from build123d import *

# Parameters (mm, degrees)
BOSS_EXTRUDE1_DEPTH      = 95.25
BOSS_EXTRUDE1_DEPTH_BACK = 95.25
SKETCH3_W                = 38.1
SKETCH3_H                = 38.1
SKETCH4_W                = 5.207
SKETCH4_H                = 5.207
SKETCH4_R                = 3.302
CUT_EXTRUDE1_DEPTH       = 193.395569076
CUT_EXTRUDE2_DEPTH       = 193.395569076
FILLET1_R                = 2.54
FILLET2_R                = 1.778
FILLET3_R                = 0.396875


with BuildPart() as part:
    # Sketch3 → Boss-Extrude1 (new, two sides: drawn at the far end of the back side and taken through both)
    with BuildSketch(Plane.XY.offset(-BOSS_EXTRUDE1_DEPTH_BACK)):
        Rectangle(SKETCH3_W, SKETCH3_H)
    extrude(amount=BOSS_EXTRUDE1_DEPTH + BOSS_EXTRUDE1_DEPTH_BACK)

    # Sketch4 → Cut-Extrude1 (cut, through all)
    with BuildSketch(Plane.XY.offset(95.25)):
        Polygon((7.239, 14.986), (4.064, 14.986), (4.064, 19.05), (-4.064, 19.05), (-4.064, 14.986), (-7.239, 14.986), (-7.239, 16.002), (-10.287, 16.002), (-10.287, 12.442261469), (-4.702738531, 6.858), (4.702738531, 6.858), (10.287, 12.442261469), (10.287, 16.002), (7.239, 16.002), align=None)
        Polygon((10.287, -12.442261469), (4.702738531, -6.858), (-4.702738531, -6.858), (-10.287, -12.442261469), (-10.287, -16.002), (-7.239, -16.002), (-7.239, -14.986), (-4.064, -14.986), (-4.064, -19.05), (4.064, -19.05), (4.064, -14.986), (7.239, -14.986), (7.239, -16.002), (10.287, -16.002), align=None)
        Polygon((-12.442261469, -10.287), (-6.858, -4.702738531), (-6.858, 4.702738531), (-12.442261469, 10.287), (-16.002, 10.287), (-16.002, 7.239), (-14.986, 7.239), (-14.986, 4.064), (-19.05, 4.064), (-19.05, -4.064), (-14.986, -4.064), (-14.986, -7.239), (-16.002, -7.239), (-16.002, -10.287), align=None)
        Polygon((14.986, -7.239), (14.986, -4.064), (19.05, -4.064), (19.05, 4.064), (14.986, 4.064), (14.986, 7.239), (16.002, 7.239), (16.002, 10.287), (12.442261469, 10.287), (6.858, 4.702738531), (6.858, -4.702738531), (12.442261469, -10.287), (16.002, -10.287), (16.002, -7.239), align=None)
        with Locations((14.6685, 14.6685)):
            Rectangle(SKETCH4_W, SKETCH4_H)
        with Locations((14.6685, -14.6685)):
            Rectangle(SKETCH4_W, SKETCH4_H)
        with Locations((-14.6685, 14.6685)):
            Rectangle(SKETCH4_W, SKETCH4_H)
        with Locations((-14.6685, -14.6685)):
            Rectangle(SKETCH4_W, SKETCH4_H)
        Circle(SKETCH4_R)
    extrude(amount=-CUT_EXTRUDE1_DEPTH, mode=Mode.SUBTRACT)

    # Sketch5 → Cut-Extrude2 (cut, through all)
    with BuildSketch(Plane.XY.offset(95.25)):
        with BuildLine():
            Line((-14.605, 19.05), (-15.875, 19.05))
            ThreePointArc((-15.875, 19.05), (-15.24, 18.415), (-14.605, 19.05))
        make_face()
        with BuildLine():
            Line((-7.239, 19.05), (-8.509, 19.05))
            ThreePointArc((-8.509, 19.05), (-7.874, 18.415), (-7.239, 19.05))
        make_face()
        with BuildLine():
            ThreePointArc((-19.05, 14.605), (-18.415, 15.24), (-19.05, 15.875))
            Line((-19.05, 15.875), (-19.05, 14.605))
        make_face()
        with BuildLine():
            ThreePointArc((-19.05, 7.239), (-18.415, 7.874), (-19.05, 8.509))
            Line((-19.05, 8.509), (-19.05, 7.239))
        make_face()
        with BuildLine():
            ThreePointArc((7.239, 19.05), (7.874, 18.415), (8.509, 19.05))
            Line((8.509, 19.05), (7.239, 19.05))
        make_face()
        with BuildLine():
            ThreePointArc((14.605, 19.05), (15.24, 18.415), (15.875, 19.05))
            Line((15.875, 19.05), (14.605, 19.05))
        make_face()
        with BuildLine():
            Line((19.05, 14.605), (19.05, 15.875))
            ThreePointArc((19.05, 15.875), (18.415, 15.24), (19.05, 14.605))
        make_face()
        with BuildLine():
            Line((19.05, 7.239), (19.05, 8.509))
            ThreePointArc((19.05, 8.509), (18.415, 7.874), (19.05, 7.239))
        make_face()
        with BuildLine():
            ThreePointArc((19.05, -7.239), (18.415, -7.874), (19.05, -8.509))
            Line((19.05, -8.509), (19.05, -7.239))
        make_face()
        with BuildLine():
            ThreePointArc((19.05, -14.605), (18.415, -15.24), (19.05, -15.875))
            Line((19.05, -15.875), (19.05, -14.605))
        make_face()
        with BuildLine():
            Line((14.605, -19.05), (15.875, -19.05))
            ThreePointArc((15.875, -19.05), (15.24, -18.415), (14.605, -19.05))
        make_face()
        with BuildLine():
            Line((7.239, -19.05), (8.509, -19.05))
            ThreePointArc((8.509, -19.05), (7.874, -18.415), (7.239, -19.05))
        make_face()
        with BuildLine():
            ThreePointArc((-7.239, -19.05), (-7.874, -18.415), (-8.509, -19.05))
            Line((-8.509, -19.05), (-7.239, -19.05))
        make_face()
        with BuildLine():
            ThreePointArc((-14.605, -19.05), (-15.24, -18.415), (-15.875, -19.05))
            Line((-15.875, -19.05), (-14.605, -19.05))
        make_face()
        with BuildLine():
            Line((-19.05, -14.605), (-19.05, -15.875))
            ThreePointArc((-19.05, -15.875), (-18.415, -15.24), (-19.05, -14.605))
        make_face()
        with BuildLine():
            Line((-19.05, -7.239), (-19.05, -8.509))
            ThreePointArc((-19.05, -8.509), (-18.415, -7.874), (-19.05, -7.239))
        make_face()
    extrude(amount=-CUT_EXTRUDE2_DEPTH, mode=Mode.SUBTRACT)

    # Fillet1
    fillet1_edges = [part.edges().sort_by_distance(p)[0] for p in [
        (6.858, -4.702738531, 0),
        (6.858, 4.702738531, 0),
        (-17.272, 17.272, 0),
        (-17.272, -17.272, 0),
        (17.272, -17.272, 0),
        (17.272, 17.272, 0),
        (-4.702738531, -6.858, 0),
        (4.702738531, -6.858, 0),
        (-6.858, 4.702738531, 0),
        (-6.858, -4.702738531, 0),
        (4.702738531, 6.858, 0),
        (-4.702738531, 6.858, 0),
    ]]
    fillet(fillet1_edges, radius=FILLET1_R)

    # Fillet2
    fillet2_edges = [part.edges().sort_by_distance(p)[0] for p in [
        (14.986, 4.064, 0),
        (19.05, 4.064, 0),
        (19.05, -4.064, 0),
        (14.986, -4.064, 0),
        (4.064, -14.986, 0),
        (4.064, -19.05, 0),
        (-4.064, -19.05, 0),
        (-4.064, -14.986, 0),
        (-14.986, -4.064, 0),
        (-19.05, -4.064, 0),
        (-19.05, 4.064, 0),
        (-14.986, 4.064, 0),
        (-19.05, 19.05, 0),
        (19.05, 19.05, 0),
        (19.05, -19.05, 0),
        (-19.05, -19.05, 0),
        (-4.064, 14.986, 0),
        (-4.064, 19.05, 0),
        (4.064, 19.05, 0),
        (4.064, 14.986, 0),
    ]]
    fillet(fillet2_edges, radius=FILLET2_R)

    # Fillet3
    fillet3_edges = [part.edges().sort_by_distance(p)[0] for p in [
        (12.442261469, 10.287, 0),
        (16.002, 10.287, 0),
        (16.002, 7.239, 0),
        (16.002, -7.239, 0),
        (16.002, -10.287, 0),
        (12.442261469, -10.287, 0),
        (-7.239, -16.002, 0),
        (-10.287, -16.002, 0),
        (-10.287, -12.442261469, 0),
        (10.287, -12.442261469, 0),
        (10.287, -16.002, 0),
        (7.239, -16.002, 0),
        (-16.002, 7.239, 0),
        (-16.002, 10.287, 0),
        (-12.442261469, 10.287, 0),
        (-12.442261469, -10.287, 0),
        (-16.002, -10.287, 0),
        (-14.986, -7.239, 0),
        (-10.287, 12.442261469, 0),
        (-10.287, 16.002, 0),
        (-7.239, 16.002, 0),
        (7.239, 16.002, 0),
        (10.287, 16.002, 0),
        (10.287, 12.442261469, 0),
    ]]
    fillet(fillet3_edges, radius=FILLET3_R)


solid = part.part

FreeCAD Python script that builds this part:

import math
import FreeCAD as App
import Part
import Sketcher
Q = App.Units.Quantity


def edges_at(feature, points):
    """Names of the edges that pass closest to the given points."""
    edges = feature.Shape.Edges
    near = lambda p: min(range(len(edges)), key=lambda i: edges[i].distToShape(Part.Vertex(*p))[0])
    return sorted({f"Edge{near(p) + 1}" for p in points})


def add_polygon(sketch, points):
    """Adds a closed chain of lines whose ends are joined by coincident constraints."""
    first, n = sketch.GeometryCount, len(points)
    for a, b in zip(points, points[1:] + points[:1]):
        sketch.addGeometry(Part.LineSegment(App.Vector(*a, 0), App.Vector(*b, 0)), False)
    for i in range(n):
        sketch.addConstraint(Sketcher.Constraint("Coincident", first + i, 2, first + (i + 1) % n, 1))

doc = App.newDocument("Part")
body = doc.addObject("PartDesign::Body", "Body")

# Sketch on XY plane
sketch1 = body.newObject("Sketcher::SketchObject", "Sketch")
sketch1.AttachmentSupport = (doc.getObject("XY_Plane"), [""])
sketch1.MapMode = "FlatFace"
add_polygon(sketch1, [(-19, 19), (-19, -19), (19, -19), (19, 19)])  # lines 0-3
sketch1.addConstraint(Sketcher.Constraint("Vertical", 0))
sketch1.addConstraint(Sketcher.Constraint("Horizontal", 1))
sketch1.addConstraint(Sketcher.Constraint("Vertical", 2))
sketch1.addConstraint(Sketcher.Constraint("Horizontal", 3))
sketch1.addConstraint(Sketcher.Constraint("Symmetric", 0, 2, 2, 2, -1, 1))
sketch1.addConstraint(Sketcher.Constraint("Equal", 3, 0))
sketch1.addConstraint(Sketcher.Constraint("DistanceX", 1, 1, 1, 2, Q("1.5 in")))
pad1 = body.newObject("PartDesign::Pad", "Pad")
pad1.Profile = sketch1
pad1.Type = "TwoLengths"
pad1.Length = Q("3.75 in")
pad1.Length2 = Q("3.75 in")

# Sketch on XY plane
sketch2 = body.newObject("Sketcher::SketchObject", "Sketch001")
sketch2.AttachmentSupport = (doc.getObject("XY_Plane"), [""])
sketch2.MapMode = "FlatFace"
sketch2.AttachmentOffset = App.Placement(App.Vector(0, 0, 3.75 * 25.4), App.Rotation())
add_polygon(sketch2, [(7.2, 15), (4.1, 15), (4.1, 19.1), (-4.1, 19.1), (-4.1, 15), (-7.2, 15), (-7.2, 16), (-10.3, 16), (-10.3, 12.4), (-4.7, 6.9), (4.7, 6.9), (10.3, 12.4), (10.3, 16), (7.2, 16)])  # lines 0-13
add_polygon(sketch2, [(10.3, -12.4), (4.7, -6.9), (-4.7, -6.9), (-10.3, -12.4), (-10.3, -16), (-7.2, -16), (-7.2, -15), (-4.1, -15), (-4.1, -19.1), (4.1, -19.1), (4.1, -15), (7.2, -15), (7.2, -16), (10.3, -16)])  # lines 14-27
add_polygon(sketch2, [(-12.4, -10.3), (-6.9, -4.7), (-6.9, 4.7), (-12.4, 10.3), (-16, 10.3), (-16, 7.2), (-15, 7.2), (-15, 4.1), (-19.1, 4.1), (-19.1, -4.1), (-15, -4.1), (-15, -7.2), (-16, -7.2), (-16, -10.3)])  # lines 28-41
add_polygon(sketch2, [(15, -7.2), (15, -4.1), (19.1, -4.1), (19.1, 4.1), (15, 4.1), (15, 7.2), (16, 7.2), (16, 10.3), (12.4, 10.3), (6.9, 4.7), (6.9, -4.7), (12.4, -10.3), (16, -10.3), (16, -7.2)])  # lines 42-55
add_polygon(sketch2, [(12.1, 17.3), (12.1, 12.1), (17.3, 12.1), (17.3, 17.3)])  # lines 56-59
add_polygon(sketch2, [(12.1, -12.1), (12.1, -17.3), (17.3, -17.3), (17.3, -12.1)])  # lines 60-63
add_polygon(sketch2, [(-17.3, 17.3), (-17.3, 12.1), (-12.1, 12.1), (-12.1, 17.3)])  # lines 64-67
add_polygon(sketch2, [(-17.3, -12.1), (-17.3, -17.3), (-12.1, -17.3), (-12.1, -12.1)])  # lines 68-71
sketch2.addGeometry(Part.Circle(App.Vector(0, 0, 0), App.Vector(0, 0, 1), 3.3), False)  # 72
sketch2.addConstraint(Sketcher.Constraint("Horizontal", 0))
sketch2.addConstraint(Sketcher.Constraint("Vertical", 1))
sketch2.addConstraint(Sketcher.Constraint("Horizontal", 2))
sketch2.addConstraint(Sketcher.Constraint("Vertical", 3))
sketch2.addConstraint(Sketcher.Constraint("Horizontal", 4))
sketch2.addConstraint(Sketcher.Constraint("Vertical", 5))
sketch2.addConstraint(Sketcher.Constraint("Horizontal", 6))
sketch2.addConstraint(Sketcher.Constraint("Vertical", 7))
sketch2.addConstraint(Sketcher.Constraint("Horizontal", 9))
sketch2.addConstraint(Sketcher.Constraint("Vertical", 11))
sketch2.addConstraint(Sketcher.Constraint("Horizontal", 12))
sketch2.addConstraint(Sketcher.Constraint("Vertical", 13))
sketch2.addConstraint(Sketcher.Constraint("Horizontal", 15))
sketch2.addConstraint(Sketcher.Constraint("Vertical", 17))
sketch2.addConstraint(Sketcher.Constraint("Horizontal", 18))
sketch2.addConstraint(Sketcher.Constraint("Vertical", 19))
sketch2.addConstraint(Sketcher.Constraint("Horizontal", 20))
sketch2.addConstraint(Sketcher.Constraint("Vertical", 21))
sketch2.addConstraint(Sketcher.Constraint("Horizontal", 22))
sketch2.addConstraint(Sketcher.Constraint("Vertical", 23))
sketch2.addConstraint(Sketcher.Constraint("Horizontal", 24))
sketch2.addConstraint(Sketcher.Constraint("Vertical", 25))
sketch2.addConstraint(Sketcher.Constraint("Horizontal", 26))
sketch2.addConstraint(Sketcher.Constraint("Vertical", 27))
sketch2.addConstraint(Sketcher.Constraint("Vertical", 29))
sketch2.addConstraint(Sketcher.Constraint("Horizontal", 31))
sketch2.addConstraint(Sketcher.Constraint("Vertical", 32))
sketch2.addConstraint(Sketcher.Constraint("Horizontal", 33))
sketch2.addConstraint(Sketcher.Constraint("Vertical", 34))
sketch2.addConstraint(Sketcher.Constraint("Horizontal", 35))
sketch2.addConstraint(Sketcher.Constraint("Vertical", 36))
sketch2.addConstraint(Sketcher.Constraint("Horizontal", 37))
sketch2.addConstraint(Sketcher.Constraint("Vertical", 38))
sketch2.addConstraint(Sketcher.Constraint("Horizontal", 39))
sketch2.addConstraint(Sketcher.Constraint("Vertical", 40))
sketch2.addConstraint(Sketcher.Constraint("Horizontal", 41))
sketch2.addConstraint(Sketcher.Constraint("Vertical", 42))
sketch2.addConstraint(Sketcher.Constraint("Horizontal", 43))
sketch2.addConstraint(Sketcher.Constraint("Vertical", 44))
sketch2.addConstraint(Sketcher.Constraint("Horizontal", 45))
sketch2.addConstraint(Sketcher.Constraint("Vertical", 46))
sketch2.addConstraint(Sketcher.Constraint("Horizontal", 47))
sketch2.addConstraint(Sketcher.Constraint("Vertical", 48))
sketch2.addConstraint(Sketcher.Constraint("Horizontal", 49))
sketch2.addConstraint(Sketcher.Constraint("Vertical", 51))
sketch2.addConstraint(Sketcher.Constraint("Horizontal", 53))
sketch2.addConstraint(Sketcher.Constraint("Vertical", 54))
sketch2.addConstraint(Sketcher.Constraint("Horizontal", 55))
sketch2.addConstraint(Sketcher.Constraint("Vertical", 56))
sketch2.addConstraint(Sketcher.Constraint("Horizontal", 57))
sketch2.addConstraint(Sketcher.Constraint("Vertical", 58))
sketch2.addConstraint(Sketcher.Constraint("Horizontal", 59))
sketch2.addConstraint(Sketcher.Constraint("Vertical", 60))
sketch2.addConstraint(Sketcher.Constraint("Horizontal", 61))
sketch2.addConstraint(Sketcher.Constraint("Vertical", 62))
sketch2.addConstraint(Sketcher.Constraint("Horizontal", 63))
sketch2.addConstraint(Sketcher.Constraint("Vertical", 64))
sketch2.addConstraint(Sketcher.Constraint("Horizontal", 65))
sketch2.addConstraint(Sketcher.Constraint("Vertical", 66))
sketch2.addConstraint(Sketcher.Constraint("Horizontal", 67))
sketch2.addConstraint(Sketcher.Constraint("Vertical", 68))
sketch2.addConstraint(Sketcher.Constraint("Horizontal", 69))
sketch2.addConstraint(Sketcher.Constraint("Vertical", 70))
sketch2.addConstraint(Sketcher.Constraint("Horizontal", 71))
sketch2.addConstraint(Sketcher.Constraint("Coincident", 72, 3, -1, 1))
sketch2.addConstraint(Sketcher.Constraint("Symmetric", 8, 2, 14, 2, -1, 1))
sketch2.addConstraint(Sketcher.Constraint("Symmetric", 10, 2, 16, 2, -1, 1))
sketch2.addConstraint(Sketcher.Constraint("Symmetric", 12, 2, 18, 2, -1, 1))
sketch2.addConstraint(Sketcher.Constraint("Symmetric", 0, 2, 20, 2, -1, 1))
sketch2.addConstraint(Sketcher.Constraint("Symmetric", 2, 2, 22, 2, -1, 1))
sketch2.addConstraint(Sketcher.Constraint("Symmetric", 4, 2, 24, 2, -1, 1))
sketch2.addConstraint(Sketcher.Constraint("Symmetric", 6, 2, 26, 2, -1, 1))
sketch2.addConstraint(Sketcher.Constraint("Symmetric", 34, 2, 42, 2, -1, 1))
sketch2.addConstraint(Sketcher.Constraint("Symmetric", 36, 2, 44, 2, -1, 1))
sketch2.addConstraint(Sketcher.Constraint("Symmetric", 38, 2, 46, 2, -1, 1))
sketch2.addConstraint(Sketcher.Constraint("Symmetric", 40, 2, 48, 2, -1, 1))
sketch2.addConstraint(Sketcher.Constraint("Symmetric", 28, 2, 50, 2, -1, 1))
sketch2.addConstraint(Sketcher.Constraint("Symmetric", 30, 2, 52, 2, -1, 1))
sketch2.addConstraint(Sketcher.Constraint("Symmetric", 32, 2, 54, 2, -1, 1))
sketch2.addConstraint(Sketcher.Constraint("Symmetric", 62, 2, 64, 2, -1, 1))
sketch2.addConstraint(Sketcher.Constraint("Symmetric", 60, 2, 66, 2, -1, 1))
sketch2.addConstraint(Sketcher.Constraint("Symmetric", 58, 2, 68, 2, -1, 1))
sketch2.addConstraint(Sketcher.Constraint("Symmetric", 56, 2, 70, 2, -1, 1))
sketch2.addConstraint(Sketcher.Constraint("Symmetric", 0, 2, 3, 2, -2))
sketch2.addConstraint(Sketcher.Constraint("Symmetric", 7, 2, 10, 2, -2))
sketch2.addConstraint(Sketcher.Constraint("Symmetric", 5, 2, 12, 2, -2))
sketch2.addConstraint(Sketcher.Constraint("Symmetric", 37, 2, 42, 2, -2))
sketch2.addConstraint(Sketcher.Constraint("Symmetric", 32, 2, 47, 2, -2))
sketch2.addConstraint(Sketcher.Constraint("Symmetric", 30, 2, 49, 2, -2))
sketch2.addConstraint(Sketcher.Constraint("Symmetric", 57, 2, 64, 2, -2))
sketch2.addConstraint(Sketcher.Constraint("Symmetric", 59, 2, 66, 2, -2))
sketch2.addConstraint(Sketcher.Constraint("Perpendicular", 8, 10))
sketch2.addConstraint(Sketcher.Constraint("Perpendicular", 10, 14))
sketch2.addConstraint(Sketcher.Constraint("Perpendicular", 14, 16))
sketch2.addConstraint(Sketcher.Constraint("Parallel", 16, 28))
sketch2.addConstraint(Sketcher.Constraint("Perpendicular", 28, 30))
sketch2.addConstraint(Sketcher.Constraint("Perpendicular", 30, 50))
sketch2.addConstraint(Sketcher.Constraint("Perpendicular", 50, 52))
sketch2.addConstraint(Sketcher.Constraint("Horizontal", 29, 2, 50, 2))
sketch2.addConstraint(Sketcher.Constraint("Equal", 45, 1))
sketch2.addConstraint(Sketcher.Constraint("Equal", 55, 5))
sketch2.addConstraint(Sketcher.Constraint("Equal", 53, 7))
sketch2.addConstraint(Sketcher.Constraint("Equal", 15, 29))
sketch2.addConstraint(Sketcher.Constraint("Equal", 26, 32))
sketch2.addConstraint(Sketcher.Constraint("Equal", 24, 34))
sketch2.addConstraint(Sketcher.Constraint("Equal", 22, 36))
sketch2.addConstraint(Sketcher.Constraint("Equal", 71, 56))
sketch2.addConstraint(Sketcher.Constraint("Diameter", 72, Q("0.26 in")))
sketch2.addConstraint(Sketcher.Constraint("DistanceX", 2, 2, 2, 1, Q("0.32 in")))
sketch2.addConstraint(Sketcher.Constraint("DistanceX", 6, 2, 6, 1, Q("0.12 in")))
sketch2.addConstraint(Sketcher.Constraint("DistanceX", 33, 1, 33, 2, Q("0.04 in")))
sketch2.addConstraint(Sketcher.Constraint("DistanceX", 35, 2, 35, 1, Q("0.16 in")))
sketch2.addConstraint(Sketcher.Constraint("DistanceX", 0, 2, 0, 1, Q("0.125 in")))
sketch2.addConstraint(Sketcher.Constraint("DistanceX", 57, 1, 57, 2, Q("0.205 in")))
sketch2.addConstraint(Sketcher.Constraint("DistanceY", -1, 1, 0, 2, Q("0.59 in")))
sketch2.addConstraint(Sketcher.Constraint("DistanceY", -1, 1, 8, 2, Q("0.27 in")))
sketch2.addConstraint(Sketcher.Constraint("DistanceX", 28, 2, -1, 1, Q("0.27 in")))
sketch2.addConstraint(Sketcher.Constraint("DistanceX", -1, 1, 57, 2, Q("0.68 in")))
sketch2.addConstraint(Sketcher.Constraint("DistanceY", -1, 1, 58, 2, Q("0.68 in")))
sketch2.addConstraint(Sketcher.Constraint("DistanceX", 31, 2, 31, 1, 3.559739))
pocket1 = body.newObject("PartDesign::Pocket", "Pocket")
pocket1.Profile = sketch2
pocket1.Type = "ThroughAll"

# Sketch on XY plane
sketch3 = body.newObject("Sketcher::SketchObject", "Sketch002")
sketch3.AttachmentSupport = (doc.getObject("XY_Plane"), [""])
sketch3.MapMode = "FlatFace"
sketch3.AttachmentOffset = App.Placement(App.Vector(0, 0, 3.75 * 25.4), App.Rotation())
sketch3.addGeometry(Part.LineSegment(App.Vector(-14.6, 19.1, 0), App.Vector(-15.9, 19.1, 0)), False)
sketch3.addGeometry(Part.ArcOfCircle(Part.Circle(App.Vector(-15.2, 19.1, 0), App.Vector(0, 0, 1), 0.6), math.radians(180), math.radians(360)), False)
sketch3.addGeometry(Part.LineSegment(App.Vector(-7.2, 19.1, 0), App.Vector(-8.5, 19.1, 0)), False)
sketch3.addGeometry(Part.ArcOfCircle(Part.Circle(App.Vector(-7.9, 19.1, 0), App.Vector(0, 0, 1), 0.6), math.radians(180), math.radians(360)), False)
sketch3.addGeometry(Part.ArcOfCircle(Part.Circle(App.Vector(-19.1, 15.2, 0), App.Vector(0, 0, 1), 0.6), math.radians(-90), math.radians(90)), False)
sketch3.addGeometry(Part.LineSegment(App.Vector(-19.1, 15.9, 0), App.Vector(-19.1, 14.6, 0)), False)
sketch3.addGeometry(Part.ArcOfCircle(Part.Circle(App.Vector(-19.1, 7.9, 0), App.Vector(0, 0, 1), 0.6), math.radians(-90), math.radians(90)), False)
sketch3.addGeometry(Part.LineSegment(App.Vector(-19.1, 8.5, 0), App.Vector(-19.1, 7.2, 0)), False)
sketch3.addGeometry(Part.ArcOfCircle(Part.Circle(App.Vector(7.9, 19.1, 0), App.Vector(0, 0, 1), 0.6), math.radians(180), math.radians(360)), False)
sketch3.addGeometry(Part.LineSegment(App.Vector(8.5, 19.1, 0), App.Vector(7.2, 19.1, 0)), False)
sketch3.addGeometry(Part.ArcOfCircle(Part.Circle(App.Vector(15.2, 19.1, 0), App.Vector(0, 0, 1), 0.6), math.radians(180), math.radians(360)), False)
sketch3.addGeometry(Part.LineSegment(App.Vector(15.9, 19.1, 0), App.Vector(14.6, 19.1, 0)), False)
sketch3.addGeometry(Part.LineSegment(App.Vector(19.1, 14.6, 0), App.Vector(19.1, 15.9, 0)), False)
sketch3.addGeometry(Part.ArcOfCircle(Part.Circle(App.Vector(19.1, 15.2, 0), App.Vector(0, 0, 1), 0.6), math.radians(90), math.radians(270)), False)
sketch3.addGeometry(Part.LineSegment(App.Vector(19.1, 7.2, 0), App.Vector(19.1, 8.5, 0)), False)
sketch3.addGeometry(Part.ArcOfCircle(Part.Circle(App.Vector(19.1, 7.9, 0), App.Vector(0, 0, 1), 0.6), math.radians(90), math.radians(270)), False)
sketch3.addGeometry(Part.ArcOfCircle(Part.Circle(App.Vector(19.1, -7.9, 0), App.Vector(0, 0, 1), 0.6), math.radians(90), math.radians(270)), False)
sketch3.addGeometry(Part.LineSegment(App.Vector(19.1, -8.5, 0), App.Vector(19.1, -7.2, 0)), False)
sketch3.addGeometry(Part.ArcOfCircle(Part.Circle(App.Vector(19.1, -15.2, 0), App.Vector(0, 0, 1), 0.6), math.radians(90), math.radians(270)), False)
sketch3.addGeometry(Part.LineSegment(App.Vector(19.1, -15.9, 0), App.Vector(19.1, -14.6, 0)), False)
sketch3.addGeometry(Part.LineSegment(App.Vector(14.6, -19.1, 0), App.Vector(15.9, -19.1, 0)), False)
sketch3.addGeometry(Part.ArcOfCircle(Part.Circle(App.Vector(15.2, -19.1, 0), App.Vector(0, 0, 1), 0.6), math.radians(0), math.radians(180)), False)
sketch3.addGeometry(Part.LineSegment(App.Vector(7.2, -19.1, 0), App.Vector(8.5, -19.1, 0)), False)
sketch3.addGeometry(Part.ArcOfCircle(Part.Circle(App.Vector(7.9, -19.1, 0), App.Vector(0, 0, 1), 0.6), math.radians(0), math.radians(180)), False)
sketch3.addGeometry(Part.ArcOfCircle(Part.Circle(App.Vector(-7.9, -19.1, 0), App.Vector(0, 0, 1), 0.6), math.radians(0), math.radians(180)), False)
sketch3.addGeometry(Part.LineSegment(App.Vector(-8.5, -19.1, 0), App.Vector(-7.2, -19.1, 0)), False)
sketch3.addGeometry(Part.ArcOfCircle(Part.Circle(App.Vector(-15.2, -19.1, 0), App.Vector(0, 0, 1), 0.6), math.radians(0), math.radians(180)), False)
sketch3.addGeometry(Part.LineSegment(App.Vector(-15.9, -19.1, 0), App.Vector(-14.6, -19.1, 0)), False)
sketch3.addGeometry(Part.LineSegment(App.Vector(-19.1, -14.6, 0), App.Vector(-19.1, -15.9, 0)), False)
sketch3.addGeometry(Part.ArcOfCircle(Part.Circle(App.Vector(-19.1, -15.2, 0), App.Vector(0, 0, 1), 0.6), math.radians(-90), math.radians(90)), False)
sketch3.addGeometry(Part.LineSegment(App.Vector(-19.1, -7.2, 0), App.Vector(-19.1, -8.5, 0)), False)
sketch3.addGeometry(Part.ArcOfCircle(Part.Circle(App.Vector(-19.1, -7.9, 0), App.Vector(0, 0, 1), 0.6), math.radians(-90), math.radians(90)), False)
sketch3.addConstraint(Sketcher.Constraint("Coincident", 0, 1, 1, 2))
sketch3.addConstraint(Sketcher.Constraint("Coincident", 1, 1, 0, 2))
sketch3.addConstraint(Sketcher.Constraint("Coincident", 2, 1, 3, 2))
sketch3.addConstraint(Sketcher.Constraint("Coincident", 3, 1, 2, 2))
sketch3.addConstraint(Sketcher.Constraint("Coincident", 4, 1, 5, 2))
sketch3.addConstraint(Sketcher.Constraint("Coincident", 5, 1, 4, 2))
sketch3.addConstraint(Sketcher.Constraint("Coincident", 6, 1, 7, 2))
sketch3.addConstraint(Sketcher.Constraint("Coincident", 7, 1, 6, 2))
sketch3.addConstraint(Sketcher.Constraint("Coincident", 8, 1, 9, 2))
sketch3.addConstraint(Sketcher.Constraint("Coincident", 9, 1, 8, 2))
sketch3.addConstraint(Sketcher.Constraint("Coincident", 10, 1, 11, 2))
sketch3.addConstraint(Sketcher.Constraint("Coincident", 11, 1, 10, 2))
sketch3.addConstraint(Sketcher.Constraint("Coincident", 12, 1, 13, 2))
sketch3.addConstraint(Sketcher.Constraint("Coincident", 13, 1, 12, 2))
sketch3.addConstraint(Sketcher.Constraint("Coincident", 14, 1, 15, 2))
sketch3.addConstraint(Sketcher.Constraint("Coincident", 15, 1, 14, 2))
sketch3.addConstraint(Sketcher.Constraint("Coincident", 16, 1, 17, 2))
sketch3.addConstraint(Sketcher.Constraint("Coincident", 17, 1, 16, 2))
sketch3.addConstraint(Sketcher.Constraint("Coincident", 18, 1, 19, 2))
sketch3.addConstraint(Sketcher.Constraint("Coincident", 19, 1, 18, 2))
sketch3.addConstraint(Sketcher.Constraint("Coincident", 20, 1, 21, 2))
sketch3.addConstraint(Sketcher.Constraint("Coincident", 21, 1, 20, 2))
sketch3.addConstraint(Sketcher.Constraint("Coincident", 22, 1, 23, 2))
sketch3.addConstraint(Sketcher.Constraint("Coincident", 23, 1, 22, 2))
sketch3.addConstraint(Sketcher.Constraint("Coincident", 24, 1, 25, 2))
sketch3.addConstraint(Sketcher.Constraint("Coincident", 25, 1, 24, 2))
sketch3.addConstraint(Sketcher.Constraint("Coincident", 26, 1, 27, 2))
sketch3.addConstraint(Sketcher.Constraint("Coincident", 27, 1, 26, 2))
sketch3.addConstraint(Sketcher.Constraint("Coincident", 28, 1, 29, 2))
sketch3.addConstraint(Sketcher.Constraint("Coincident", 29, 1, 28, 2))
sketch3.addConstraint(Sketcher.Constraint("Coincident", 30, 1, 31, 2))
sketch3.addConstraint(Sketcher.Constraint("Coincident", 31, 1, 30, 2))
sketch3.addConstraint(Sketcher.Constraint("Horizontal", 0))
sketch3.addConstraint(Sketcher.Constraint("Horizontal", 2))
sketch3.addConstraint(Sketcher.Constraint("Vertical", 5))
sketch3.addConstraint(Sketcher.Constraint("Vertical", 7))
sketch3.addConstraint(Sketcher.Constraint("Horizontal", 9))
sketch3.addConstraint(Sketcher.Constraint("Horizontal", 11))
sketch3.addConstraint(Sketcher.Constraint("Vertical", 12))
sketch3.addConstraint(Sketcher.Constraint("Vertical", 14))
sketch3.addConstraint(Sketcher.Constraint("Vertical", 17))
sketch3.addConstraint(Sketcher.Constraint("Vertical", 19))
sketch3.addConstraint(Sketcher.Constraint("Horizontal", 20))
sketch3.addConstraint(Sketcher.Constraint("Horizontal", 22))
sketch3.addConstraint(Sketcher.Constraint("Horizontal", 25))
sketch3.addConstraint(Sketcher.Constraint("Horizontal", 27))
sketch3.addConstraint(Sketcher.Constraint("Vertical", 28))
sketch3.addConstraint(Sketcher.Constraint("Vertical", 30))
sketch3.addConstraint(Sketcher.Constraint("Equal", 1, 3))
sketch3.addConstraint(Sketcher.Constraint("Equal", 3, 4))
sketch3.addConstraint(Sketcher.Constraint("Equal", 4, 6))
sketch3.addConstraint(Sketcher.Constraint("Equal", 6, 8))
sketch3.addConstraint(Sketcher.Constraint("Equal", 8, 10))
sketch3.addConstraint(Sketcher.Constraint("Equal", 10, 13))
sketch3.addConstraint(Sketcher.Constraint("Equal", 13, 15))
sketch3.addConstraint(Sketcher.Constraint("Equal", 15, 16))
sketch3.addConstraint(Sketcher.Constraint("Equal", 16, 18))
sketch3.addConstraint(Sketcher.Constraint("Equal", 18, 21))
sketch3.addConstraint(Sketcher.Constraint("Equal", 21, 23))
sketch3.addConstraint(Sketcher.Constraint("Equal", 23, 24))
sketch3.addConstraint(Sketcher.Constraint("Equal", 24, 26))
sketch3.addConstraint(Sketcher.Constraint("Equal", 26, 29))
sketch3.addConstraint(Sketcher.Constraint("Equal", 29, 31))
sketch3.addConstraint(Sketcher.Constraint("Symmetric", 6, 3, 16, 3, -1, 1))
sketch3.addConstraint(Sketcher.Constraint("Symmetric", 4, 3, 18, 3, -1, 1))
sketch3.addConstraint(Sketcher.Constraint("Symmetric", 1, 3, 21, 3, -1, 1))
sketch3.addConstraint(Sketcher.Constraint("Symmetric", 3, 3, 23, 3, -1, 1))
sketch3.addConstraint(Sketcher.Constraint("Symmetric", 8, 3, 24, 3, -1, 1))
sketch3.addConstraint(Sketcher.Constraint("Symmetric", 10, 3, 26, 3, -1, 1))
sketch3.addConstraint(Sketcher.Constraint("Symmetric", 13, 3, 29, 3, -1, 1))
sketch3.addConstraint(Sketcher.Constraint("Symmetric", 15, 3, 31, 3, -1, 1))
sketch3.addConstraint(Sketcher.Constraint("Symmetric", 3, 3, 8, 3, -2))
sketch3.addConstraint(Sketcher.Constraint("Symmetric", 1, 3, 10, 3, -2))
sketch3.addConstraint(Sketcher.Constraint("Symmetric", 4, 3, 13, 3, -2))
sketch3.addConstraint(Sketcher.Constraint("Symmetric", 6, 3, 15, 3, -2))
sketch3.addConstraint(Sketcher.Constraint("Horizontal", 1, 3, 3, 3))
sketch3.addConstraint(Sketcher.Constraint("Horizontal", 10, 3, 0, 1))
sketch3.addConstraint(Sketcher.Constraint("Horizontal", 1, 1, 2, 1))
sketch3.addConstraint(Sketcher.Constraint("Horizontal", 3, 1, 8, 1))
sketch3.addConstraint(Sketcher.Constraint("Horizontal", 9, 1, 10, 1))
sketch3.addConstraint(Sketcher.Constraint("Horizontal", 26, 3, 20, 1))
sketch3.addConstraint(Sketcher.Constraint("Horizontal", 21, 1, 22, 1))
sketch3.addConstraint(Sketcher.Constraint("Horizontal", 23, 1, 24, 1))
sketch3.addConstraint(Sketcher.Constraint("Horizontal", 25, 1, 26, 1))
sketch3.addConstraint(Sketcher.Constraint("Vertical", 4, 3, 6, 3))
sketch3.addConstraint(Sketcher.Constraint("Vertical", 31, 3, 4, 1))
sketch3.addConstraint(Sketcher.Constraint("Vertical", 5, 1, 6, 1))
sketch3.addConstraint(Sketcher.Constraint("Vertical", 18, 3, 12, 1))
sketch3.addConstraint(Sketcher.Constraint("Vertical", 13, 1, 14, 1))
sketch3.addConstraint(Sketcher.Constraint("Vertical", 15, 1, 16, 1))
sketch3.addConstraint(Sketcher.Constraint("Vertical", 17, 1, 18, 1))
sketch3.addConstraint(Sketcher.Constraint("Vertical", 7, 1, 28, 1))
sketch3.addConstraint(Sketcher.Constraint("Vertical", 29, 1, 30, 1))
sketch3.addConstraint(Sketcher.Constraint("Radius", 1, Q("0.025 in")))
sketch3.addConstraint(Sketcher.Constraint("DistanceX", 1, 3, -1, 1, Q("0.6 in")))
sketch3.addConstraint(Sketcher.Constraint("DistanceY", -1, 1, 4, 3, Q("0.6 in")))
sketch3.addConstraint(Sketcher.Constraint("DistanceX", 4, 3, 13, 3, Q("1.5 in")))
sketch3.addConstraint(Sketcher.Constraint("DistanceY", 21, 3, 10, 3, Q("1.5 in")))
sketch3.addConstraint(Sketcher.Constraint("DistanceX", 3, 3, -1, 1, Q("0.31 in")))
sketch3.addConstraint(Sketcher.Constraint("DistanceY", -1, 1, 6, 3, Q("0.31 in")))
pocket2 = body.newObject("PartDesign::Pocket", "Pocket001")
pocket2.Profile = sketch3
pocket2.Type = "ThroughAll"
doc.recompute()

fillet = body.newObject("PartDesign::Fillet", "Fillet")
fillet.Base = (pocket2, edges_at(pocket2, [
    (6.858, -4.703, 0),
    (6.858, 4.703, 0),
    (-17.272, 17.272, 0),
    (-17.272, -17.272, 0),
    (17.272, -17.272, 0),
    (17.272, 17.272, 0),
    (-4.703, -6.858, 0),
    (4.703, -6.858, 0),
    (-6.858, 4.703, 0),
    (-6.858, -4.703, 0),
    (4.703, 6.858, 0),
    (-4.703, 6.858, 0),
]))
fillet.Radius = Q("0.1 in")
doc.recompute()

fillet2 = body.newObject("PartDesign::Fillet", "Fillet001")
fillet2.Base = (fillet, edges_at(fillet, [
    (14.986, 4.064, 0),
    (19.05, 4.064, 0),
    (19.05, -4.064, 0),
    (14.986, -4.064, 0),
    (4.064, -14.986, 0),
    (4.064, -19.05, 0),
    (-4.064, -19.05, 0),
    (-4.064, -14.986, 0),
    (-14.986, -4.064, 0),
    (-19.05, -4.064, 0),
    (-19.05, 4.064, 0),
    (-14.986, 4.064, 0),
    (-19.05, 19.05, 0),
    (19.05, 19.05, 0),
    (19.05, -19.05, 0),
    (-19.05, -19.05, 0),
    (-4.064, 14.986, 0),
    (-4.064, 19.05, 0),
    (4.064, 19.05, 0),
    (4.064, 14.986, 0),
]))
fillet2.Radius = Q("0.07 in")
doc.recompute()

fillet3 = body.newObject("PartDesign::Fillet", "Fillet002")
fillet3.Base = (fillet2, edges_at(fillet2, [
    (12.442, 10.287, 0),
    (16.002, 10.287, 0),
    (16.002, 7.239, 0),
    (16.002, -7.239, 0),
    (16.002, -10.287, 0),
    (12.442, -10.287, 0),
    (-7.239, -16.002, 0),
    (-10.287, -16.002, 0),
    (-10.287, -12.442, 0),
    (10.287, -12.442, 0),
    (10.287, -16.002, 0),
    (7.239, -16.002, 0),
    (-16.002, 7.239, 0),
    (-16.002, 10.287, 0),
    (-12.442, 10.287, 0),
    (-12.442, -10.287, 0),
    (-16.002, -10.287, 0),
    (-14.986, -7.239, 0),
    (-10.287, 12.442, 0),
    (-10.287, 16.002, 0),
    (-7.239, 16.002, 0),
    (7.239, 16.002, 0),
    (10.287, 16.002, 0),
    (10.287, 12.442, 0),
]))
fillet3.Radius = Q("0.015625 in")

doc.recompute()
